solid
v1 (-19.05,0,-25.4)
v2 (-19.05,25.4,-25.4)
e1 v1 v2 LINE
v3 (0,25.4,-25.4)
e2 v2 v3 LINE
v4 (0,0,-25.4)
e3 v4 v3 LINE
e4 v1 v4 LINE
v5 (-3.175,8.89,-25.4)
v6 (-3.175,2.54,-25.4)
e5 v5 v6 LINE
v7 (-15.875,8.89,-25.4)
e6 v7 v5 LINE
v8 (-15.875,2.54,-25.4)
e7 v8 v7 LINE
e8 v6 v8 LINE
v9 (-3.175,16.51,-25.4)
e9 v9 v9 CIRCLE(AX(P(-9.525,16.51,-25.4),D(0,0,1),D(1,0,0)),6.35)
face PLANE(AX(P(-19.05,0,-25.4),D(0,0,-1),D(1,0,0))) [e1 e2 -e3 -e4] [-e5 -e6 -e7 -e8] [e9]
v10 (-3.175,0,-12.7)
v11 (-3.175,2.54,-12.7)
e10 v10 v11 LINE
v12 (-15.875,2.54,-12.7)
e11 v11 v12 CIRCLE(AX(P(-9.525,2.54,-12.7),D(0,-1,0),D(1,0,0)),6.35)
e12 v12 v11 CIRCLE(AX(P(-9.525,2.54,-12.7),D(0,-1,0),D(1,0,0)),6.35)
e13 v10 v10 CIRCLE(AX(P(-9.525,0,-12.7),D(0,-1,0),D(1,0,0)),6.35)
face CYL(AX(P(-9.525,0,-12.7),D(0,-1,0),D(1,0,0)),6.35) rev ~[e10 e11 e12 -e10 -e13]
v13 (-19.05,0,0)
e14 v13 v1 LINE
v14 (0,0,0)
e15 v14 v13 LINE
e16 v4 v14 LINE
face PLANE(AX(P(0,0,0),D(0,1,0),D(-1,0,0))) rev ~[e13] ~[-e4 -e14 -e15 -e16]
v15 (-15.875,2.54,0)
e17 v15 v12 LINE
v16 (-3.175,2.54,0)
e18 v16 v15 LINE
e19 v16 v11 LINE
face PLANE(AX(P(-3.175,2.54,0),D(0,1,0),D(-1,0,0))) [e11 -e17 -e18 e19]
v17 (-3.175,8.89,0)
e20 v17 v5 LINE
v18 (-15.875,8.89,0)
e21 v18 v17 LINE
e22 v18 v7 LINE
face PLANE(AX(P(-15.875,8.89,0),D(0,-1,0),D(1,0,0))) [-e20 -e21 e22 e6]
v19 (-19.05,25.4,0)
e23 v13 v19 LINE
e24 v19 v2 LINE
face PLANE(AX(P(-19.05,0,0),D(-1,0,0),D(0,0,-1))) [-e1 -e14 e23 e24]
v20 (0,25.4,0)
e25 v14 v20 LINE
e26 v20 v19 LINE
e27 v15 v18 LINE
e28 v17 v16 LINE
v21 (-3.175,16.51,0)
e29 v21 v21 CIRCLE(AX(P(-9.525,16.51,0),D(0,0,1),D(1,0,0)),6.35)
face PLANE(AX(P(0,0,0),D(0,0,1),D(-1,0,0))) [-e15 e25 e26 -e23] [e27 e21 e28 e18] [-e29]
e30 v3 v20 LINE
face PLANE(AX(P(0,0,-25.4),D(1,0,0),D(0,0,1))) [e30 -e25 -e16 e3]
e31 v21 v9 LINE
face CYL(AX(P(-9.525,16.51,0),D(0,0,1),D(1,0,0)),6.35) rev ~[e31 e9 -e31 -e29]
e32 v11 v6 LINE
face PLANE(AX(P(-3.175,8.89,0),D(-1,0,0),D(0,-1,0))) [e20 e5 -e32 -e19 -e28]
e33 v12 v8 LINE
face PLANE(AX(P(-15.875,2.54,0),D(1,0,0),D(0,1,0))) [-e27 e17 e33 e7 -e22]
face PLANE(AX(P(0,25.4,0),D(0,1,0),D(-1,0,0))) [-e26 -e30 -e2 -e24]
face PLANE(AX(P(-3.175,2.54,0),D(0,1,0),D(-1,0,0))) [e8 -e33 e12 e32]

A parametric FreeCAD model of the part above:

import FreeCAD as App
import Part
import Sketcher
Q = App.Units.Quantity


def add_polygon(sketch, points):
    """Adds a closed chain of lines whose ends are joined by coincident constraints."""
    first, n = sketch.GeometryCount, len(points)
    for a, b in zip(points, points[1:] + points[:1]):
        sketch.addGeometry(Part.LineSegment(App.Vector(*a, 0), App.Vector(*b, 0)), False)
    for i in range(n):
        sketch.addConstraint(Sketcher.Constraint("Coincident", first + i, 2, first + (i + 1) % n, 1))

doc = App.newDocument("Part")
body = doc.addObject("PartDesign::Body", "Body")

# Sketch on XZ plane
sketch1 = doc.addObject("Sketcher::SketchObject", "Sketch")
body.addObject(sketch1)
sketch1.AttachmentSupport = (doc.XZ_Plane, [""])
sketch1.MapMode = "FlatFace"
add_polygon(sketch1, [(-19, 0), (0, 0), (0, -25), (-19, -25)])  # lines 0-3
sketch1.addConstraint([
    Sketcher.Constraint("Horizontal", 0),
    Sketcher.Constraint("Vertical", 1),
    Sketcher.Constraint("Horizontal", 2),
    Sketcher.Constraint("Vertical", 3),
    Sketcher.Constraint("Coincident", 0, 2, -1, 1),
    Sketcher.Constraint("DistanceY", 1, 2, 1, 1, Q("1 in")),
    Sketcher.Constraint("DistanceX", 0, 1, 0, 2, Q("0.75 in")),
])
pad1 = doc.addObject("PartDesign::Pad", "Pad")
body.addObject(pad1)
pad1.Profile = sketch1
pad1.Length = Q("1 in")
pad1.Reversed = True

# Sketch on XY plane
sketch2 = doc.addObject("Sketcher::SketchObject", "Sketch001")
body.addObject(sketch2)
sketch2.AttachmentSupport = (doc.XY_Plane, [""])
sketch2.MapMode = "FlatFace"
sketch2.addGeometry(Part.Circle(App.Vector(-10, 17, 0), App.Vector(0, 0, 1), 6), False)  # 0
add_polygon(sketch2, [(-3, 9), (-16, 9), (-16, 3), (-3, 3)])  # lines 1-4
sketch2.addConstraint([
    Sketcher.Constraint("Horizontal", 1),
    Sketcher.Constraint("Vertical", 2),
    Sketcher.Constraint("Horizontal", 3),
    Sketcher.Constraint("Vertical", 4),
    Sketcher.Constraint("Diameter", 0, Q("0.5 in")),
    Sketcher.Constraint("DistanceX", 1, 2, 1, 1, Q("0.5 in")),
    Sketcher.Constraint("DistanceY", 2, 2, 2, 1, Q("0.25 in")),
    Sketcher.Constraint("DistanceY", -1, 1, 2, 2, Q("0.1 in")),
    Sketcher.Constraint("DistanceX", 1, 2, 0, 3, Q("0.25 in")),
    Sketcher.Constraint("DistanceX", 3, 2, -1, 1, Q("0.125 in")),
    Sketcher.Constraint("DistanceY", 1, 2, 0, 3, Q("0.3 in")),
])
pocket1 = doc.addObject("PartDesign::Pocket", "Pocket")
body.addObject(pocket1)
pocket1.Profile = sketch2
pocket1.Length = Q("1 in")

# Sketch on XZ plane
sketch3 = doc.addObject("Sketcher::SketchObject", "Sketch002")
body.addObject(sketch3)
sketch3.AttachmentSupport = (doc.XZ_Plane, [""])
sketch3.MapMode = "FlatFace"
sketch3.addGeometry(Part.Circle(App.Vector(-10, -13, 0), App.Vector(0, 0, 1), 6), False)
sketch3.addConstraint([
    Sketcher.Constraint("Diameter", 0, Q("0.5 in")),
    Sketcher.Constraint("DistanceY", 0, 3, -1, 1, Q("0.5 in")),
    Sketcher.Constraint("DistanceX", 0, 3, -1, 1, Q("0.375 in")),
])
pocket2 = doc.addObject("PartDesign::Pocket", "Pocket001")
body.addObject(pocket2)
pocket2.Profile = sketch3
pocket2.Length = Q("0.125 in")

doc.recompute()
